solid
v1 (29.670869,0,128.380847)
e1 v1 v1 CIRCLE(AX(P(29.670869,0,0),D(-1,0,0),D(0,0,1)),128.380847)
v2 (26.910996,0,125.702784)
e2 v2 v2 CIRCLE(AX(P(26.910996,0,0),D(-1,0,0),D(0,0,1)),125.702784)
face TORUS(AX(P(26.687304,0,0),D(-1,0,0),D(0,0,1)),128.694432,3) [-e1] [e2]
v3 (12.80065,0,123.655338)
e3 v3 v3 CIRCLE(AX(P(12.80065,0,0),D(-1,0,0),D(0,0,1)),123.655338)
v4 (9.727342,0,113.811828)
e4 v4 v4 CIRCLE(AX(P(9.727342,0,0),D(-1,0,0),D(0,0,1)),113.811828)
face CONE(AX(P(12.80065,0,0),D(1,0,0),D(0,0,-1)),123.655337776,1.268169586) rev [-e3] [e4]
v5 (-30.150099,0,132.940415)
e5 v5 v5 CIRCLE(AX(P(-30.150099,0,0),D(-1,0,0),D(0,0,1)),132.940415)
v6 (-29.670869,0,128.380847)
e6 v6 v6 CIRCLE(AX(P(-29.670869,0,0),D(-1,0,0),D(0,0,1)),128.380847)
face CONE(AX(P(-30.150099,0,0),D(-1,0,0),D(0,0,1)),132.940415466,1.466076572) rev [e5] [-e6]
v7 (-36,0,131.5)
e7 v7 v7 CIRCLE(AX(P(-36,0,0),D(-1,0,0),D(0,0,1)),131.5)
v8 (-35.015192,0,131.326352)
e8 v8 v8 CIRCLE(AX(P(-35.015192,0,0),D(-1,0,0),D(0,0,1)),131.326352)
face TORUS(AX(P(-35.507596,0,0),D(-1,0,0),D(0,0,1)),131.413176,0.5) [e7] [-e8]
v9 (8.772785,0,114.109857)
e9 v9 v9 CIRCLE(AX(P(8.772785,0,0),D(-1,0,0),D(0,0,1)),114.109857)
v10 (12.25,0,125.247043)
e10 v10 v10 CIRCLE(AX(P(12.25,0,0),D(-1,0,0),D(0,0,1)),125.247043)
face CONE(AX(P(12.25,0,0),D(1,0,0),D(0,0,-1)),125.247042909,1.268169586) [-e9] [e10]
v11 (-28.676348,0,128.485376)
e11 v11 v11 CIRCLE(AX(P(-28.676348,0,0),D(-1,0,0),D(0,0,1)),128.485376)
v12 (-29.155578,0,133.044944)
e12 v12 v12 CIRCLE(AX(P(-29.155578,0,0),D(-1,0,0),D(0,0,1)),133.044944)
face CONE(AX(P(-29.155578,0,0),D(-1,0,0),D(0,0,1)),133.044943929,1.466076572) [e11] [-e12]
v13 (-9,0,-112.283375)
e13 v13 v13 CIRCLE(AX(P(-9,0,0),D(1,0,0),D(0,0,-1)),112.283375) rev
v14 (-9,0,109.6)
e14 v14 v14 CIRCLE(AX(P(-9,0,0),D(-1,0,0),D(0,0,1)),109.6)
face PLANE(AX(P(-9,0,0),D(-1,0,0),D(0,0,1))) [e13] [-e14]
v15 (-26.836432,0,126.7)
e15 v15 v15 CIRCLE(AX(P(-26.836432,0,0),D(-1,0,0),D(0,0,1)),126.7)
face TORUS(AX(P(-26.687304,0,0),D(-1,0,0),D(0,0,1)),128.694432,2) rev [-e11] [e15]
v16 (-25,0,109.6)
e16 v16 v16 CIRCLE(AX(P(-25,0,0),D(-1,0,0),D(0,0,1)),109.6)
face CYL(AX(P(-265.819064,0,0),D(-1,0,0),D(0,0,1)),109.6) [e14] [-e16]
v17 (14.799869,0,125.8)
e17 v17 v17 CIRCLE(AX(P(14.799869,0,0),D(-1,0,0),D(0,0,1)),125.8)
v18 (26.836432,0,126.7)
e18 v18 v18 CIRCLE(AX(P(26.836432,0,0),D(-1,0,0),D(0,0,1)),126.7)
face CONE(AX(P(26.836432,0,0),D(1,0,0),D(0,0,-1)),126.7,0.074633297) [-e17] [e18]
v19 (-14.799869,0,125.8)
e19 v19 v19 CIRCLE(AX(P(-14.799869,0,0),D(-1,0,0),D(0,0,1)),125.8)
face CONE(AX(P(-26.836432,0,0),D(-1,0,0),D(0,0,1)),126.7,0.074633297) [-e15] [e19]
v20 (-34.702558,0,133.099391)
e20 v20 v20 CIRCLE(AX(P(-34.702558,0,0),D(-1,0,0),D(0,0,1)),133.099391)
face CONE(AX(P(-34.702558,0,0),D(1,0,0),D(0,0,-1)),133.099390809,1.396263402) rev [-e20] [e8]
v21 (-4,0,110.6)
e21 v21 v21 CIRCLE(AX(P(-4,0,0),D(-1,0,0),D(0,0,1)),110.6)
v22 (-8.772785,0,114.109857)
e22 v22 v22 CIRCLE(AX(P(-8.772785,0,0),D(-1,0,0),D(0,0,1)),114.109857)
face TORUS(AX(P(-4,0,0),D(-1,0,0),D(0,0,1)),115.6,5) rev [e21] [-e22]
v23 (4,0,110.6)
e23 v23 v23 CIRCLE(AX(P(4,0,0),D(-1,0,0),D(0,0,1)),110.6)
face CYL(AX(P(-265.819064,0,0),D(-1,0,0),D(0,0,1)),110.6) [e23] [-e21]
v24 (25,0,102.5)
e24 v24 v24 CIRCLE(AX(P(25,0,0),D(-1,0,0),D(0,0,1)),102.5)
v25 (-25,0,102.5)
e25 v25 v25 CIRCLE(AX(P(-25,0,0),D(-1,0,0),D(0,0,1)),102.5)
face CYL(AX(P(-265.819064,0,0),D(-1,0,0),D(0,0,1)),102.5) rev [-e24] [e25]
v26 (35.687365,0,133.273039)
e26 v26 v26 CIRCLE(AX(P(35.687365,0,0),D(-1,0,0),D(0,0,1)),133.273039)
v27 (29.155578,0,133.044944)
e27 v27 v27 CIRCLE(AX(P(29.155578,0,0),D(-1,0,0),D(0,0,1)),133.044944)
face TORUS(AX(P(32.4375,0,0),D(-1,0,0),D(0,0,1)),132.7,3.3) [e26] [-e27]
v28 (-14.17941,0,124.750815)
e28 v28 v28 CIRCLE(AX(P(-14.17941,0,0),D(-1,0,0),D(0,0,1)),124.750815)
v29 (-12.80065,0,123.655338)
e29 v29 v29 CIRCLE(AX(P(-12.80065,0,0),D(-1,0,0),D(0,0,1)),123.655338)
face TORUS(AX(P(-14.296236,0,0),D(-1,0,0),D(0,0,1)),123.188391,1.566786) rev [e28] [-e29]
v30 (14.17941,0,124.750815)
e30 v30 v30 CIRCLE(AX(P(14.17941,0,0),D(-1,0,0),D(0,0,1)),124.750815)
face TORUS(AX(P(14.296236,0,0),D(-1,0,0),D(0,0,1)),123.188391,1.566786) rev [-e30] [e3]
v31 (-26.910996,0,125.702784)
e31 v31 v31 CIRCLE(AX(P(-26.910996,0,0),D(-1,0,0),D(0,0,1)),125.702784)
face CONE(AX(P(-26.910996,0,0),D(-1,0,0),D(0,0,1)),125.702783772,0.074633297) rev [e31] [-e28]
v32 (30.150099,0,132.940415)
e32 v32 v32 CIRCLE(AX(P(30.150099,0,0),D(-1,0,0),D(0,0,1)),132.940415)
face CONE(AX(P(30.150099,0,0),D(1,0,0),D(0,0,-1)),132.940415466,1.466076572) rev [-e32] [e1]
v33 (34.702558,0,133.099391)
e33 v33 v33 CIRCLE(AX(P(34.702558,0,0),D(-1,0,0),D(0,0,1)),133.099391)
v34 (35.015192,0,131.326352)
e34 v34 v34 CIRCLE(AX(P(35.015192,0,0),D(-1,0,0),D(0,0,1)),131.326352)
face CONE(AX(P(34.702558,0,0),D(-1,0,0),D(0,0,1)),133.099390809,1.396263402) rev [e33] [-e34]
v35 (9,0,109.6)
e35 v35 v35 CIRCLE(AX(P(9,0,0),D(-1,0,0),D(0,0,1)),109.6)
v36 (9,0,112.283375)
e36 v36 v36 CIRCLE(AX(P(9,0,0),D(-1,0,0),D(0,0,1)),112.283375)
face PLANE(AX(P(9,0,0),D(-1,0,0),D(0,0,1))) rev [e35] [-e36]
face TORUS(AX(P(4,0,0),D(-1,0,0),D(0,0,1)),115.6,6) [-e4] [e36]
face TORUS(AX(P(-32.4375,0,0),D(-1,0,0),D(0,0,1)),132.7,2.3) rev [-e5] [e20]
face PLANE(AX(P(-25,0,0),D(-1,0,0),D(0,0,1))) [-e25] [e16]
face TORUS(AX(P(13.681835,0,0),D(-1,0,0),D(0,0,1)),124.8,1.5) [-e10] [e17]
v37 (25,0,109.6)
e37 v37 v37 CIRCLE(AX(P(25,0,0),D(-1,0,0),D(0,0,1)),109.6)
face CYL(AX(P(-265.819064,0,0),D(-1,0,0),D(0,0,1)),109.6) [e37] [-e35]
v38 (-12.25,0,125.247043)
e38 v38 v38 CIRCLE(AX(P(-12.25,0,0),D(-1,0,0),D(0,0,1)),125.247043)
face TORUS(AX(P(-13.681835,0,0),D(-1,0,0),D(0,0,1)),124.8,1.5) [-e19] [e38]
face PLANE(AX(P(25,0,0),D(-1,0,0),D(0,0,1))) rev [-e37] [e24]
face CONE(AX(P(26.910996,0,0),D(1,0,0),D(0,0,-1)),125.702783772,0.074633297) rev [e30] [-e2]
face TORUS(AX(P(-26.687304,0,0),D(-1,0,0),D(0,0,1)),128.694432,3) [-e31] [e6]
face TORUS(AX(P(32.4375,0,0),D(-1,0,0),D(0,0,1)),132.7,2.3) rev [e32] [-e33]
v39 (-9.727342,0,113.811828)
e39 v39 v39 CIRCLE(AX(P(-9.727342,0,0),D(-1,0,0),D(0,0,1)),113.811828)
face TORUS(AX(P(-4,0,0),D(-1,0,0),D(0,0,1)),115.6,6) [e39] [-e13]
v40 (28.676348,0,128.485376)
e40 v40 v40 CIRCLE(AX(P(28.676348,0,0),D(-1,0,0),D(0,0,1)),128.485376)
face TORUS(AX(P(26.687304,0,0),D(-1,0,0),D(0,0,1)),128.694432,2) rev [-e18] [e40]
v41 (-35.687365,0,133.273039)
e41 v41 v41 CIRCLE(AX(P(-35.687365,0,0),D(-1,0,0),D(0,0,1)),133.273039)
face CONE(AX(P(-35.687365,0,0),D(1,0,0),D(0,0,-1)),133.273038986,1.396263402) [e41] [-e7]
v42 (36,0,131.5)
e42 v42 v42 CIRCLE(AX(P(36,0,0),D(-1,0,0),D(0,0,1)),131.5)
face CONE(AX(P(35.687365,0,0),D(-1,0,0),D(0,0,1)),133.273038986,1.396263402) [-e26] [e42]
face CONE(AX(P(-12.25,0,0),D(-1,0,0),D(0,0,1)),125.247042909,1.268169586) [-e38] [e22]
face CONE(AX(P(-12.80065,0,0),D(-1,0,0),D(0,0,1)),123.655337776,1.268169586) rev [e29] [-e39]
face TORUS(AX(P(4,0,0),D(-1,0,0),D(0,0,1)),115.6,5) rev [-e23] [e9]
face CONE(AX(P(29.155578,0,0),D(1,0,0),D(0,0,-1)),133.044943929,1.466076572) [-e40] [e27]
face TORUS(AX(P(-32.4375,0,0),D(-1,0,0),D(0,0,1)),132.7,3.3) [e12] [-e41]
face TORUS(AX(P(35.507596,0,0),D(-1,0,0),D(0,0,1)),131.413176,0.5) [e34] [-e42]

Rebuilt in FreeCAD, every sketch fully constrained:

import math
import FreeCAD as App
import Part
import Sketcher
Q = App.Units.Quantity

doc = App.newDocument("Part")
body = doc.addObject("PartDesign::Body", "Body")

sketch1 = doc.addObject("Sketcher::SketchObject", "Sketch")
body.addObject(sketch1)
sketch1.AttachmentSupport = (doc.XY_Plane, [""])
sketch1.MapMode = "FlatFace"
sketch1.addGeometry(Part.ArcOfCircle(Part.Circle(App.Vector(-4, 115.6, 0), App.Vector(0, 0, 1), 6), math.radians(-146), math.radians(-90)), False)
sketch1.addGeometry(Part.LineSegment(App.Vector(-9, 112.3, 0), App.Vector(-9, 109.6, 0)), False)
sketch1.addGeometry(Part.LineSegment(App.Vector(-9, 109.6, 0), App.Vector(-25, 109.6, 0)), False)
sketch1.addGeometry(Part.LineSegment(App.Vector(-25, 109.6, 0), App.Vector(-25, 102.5, 0)), False)
sketch1.addGeometry(Part.LineSegment(App.Vector(-25, 102.5, 0), App.Vector(25, 102.5, 0)), False)
sketch1.addGeometry(Part.LineSegment(App.Vector(25, 102.5, 0), App.Vector(25, 109.6, 0)), False)
sketch1.addGeometry(Part.LineSegment(App.Vector(25, 109.6, 0), App.Vector(9, 109.6, 0)), False)
sketch1.addGeometry(Part.LineSegment(App.Vector(9, 109.6, 0), App.Vector(9, 112.3, 0)), False)
sketch1.addGeometry(Part.ArcOfCircle(Part.Circle(App.Vector(4, 115.6, 0), App.Vector(0, 0, 1), 6), math.radians(-90), math.radians(-34)), False)
sketch1.addGeometry(Part.LineSegment(App.Vector(4, 109.6, 0), App.Vector(-4, 109.6, 0)), False)
sketch1.addConstraint(Sketcher.Constraint("Coincident", 0, 1, 1, 1))
sketch1.addConstraint(Sketcher.Constraint("Coincident", 1, 2, 2, 1))
sketch1.addConstraint(Sketcher.Constraint("Coincident", 2, 2, 3, 1))
sketch1.addConstraint(Sketcher.Constraint("Coincident", 3, 2, 4, 1))
sketch1.addConstraint(Sketcher.Constraint("Coincident", 4, 2, 5, 1))
sketch1.addConstraint(Sketcher.Constraint("Coincident", 5, 2, 6, 1))
sketch1.addConstraint(Sketcher.Constraint("Coincident", 6, 2, 7, 1))
sketch1.addConstraint(Sketcher.Constraint("Coincident", 7, 2, 8, 2))
sketch1.addConstraint(Sketcher.Constraint("Tangent", 8, 1, 9, 1))
sketch1.addConstraint(Sketcher.Constraint("Tangent", 9, 2, 0, 2))
sketch1.addConstraint(Sketcher.Constraint("Vertical", 1))
sketch1.addConstraint(Sketcher.Constraint("Horizontal", 2))
sketch1.addConstraint(Sketcher.Constraint("Vertical", 3))
sketch1.addConstraint(Sketcher.Constraint("Horizontal", 4))
sketch1.addConstraint(Sketcher.Constraint("Vertical", 5))
sketch1.addConstraint(Sketcher.Constraint("Horizontal", 6))
sketch1.addConstraint(Sketcher.Constraint("Vertical", 7))
sketch1.addConstraint(Sketcher.Constraint("Horizontal", 9))
sketch1.addConstraint(Sketcher.Constraint("Equal", 0, 8))
sketch1.addConstraint(Sketcher.Constraint("Symmetric", 2, 2, 5, 2, -2))
sketch1.addConstraint(Sketcher.Constraint("Symmetric", 0, 1, 7, 2, -2))
sketch1.addConstraint(Sketcher.Constraint("Horizontal", 6, 2, 8, 1))
sketch1.addConstraint(Sketcher.Constraint("Radius", 0, Q("6 mm")))
sketch1.addConstraint(Sketcher.Constraint("DistanceX", 2, 2, 2, 1, Q("16 mm")))
sketch1.addConstraint(Sketcher.Constraint("DistanceX", 4, 1, 4, 2, Q("50 mm")))
sketch1.addConstraint(Sketcher.Constraint("DistanceX", 9, 2, 9, 1, Q("8 mm")))
sketch1.addConstraint(Sketcher.Constraint("DistanceY", 3, 2, 3, 1, Q("7.1 mm")))
sketch1.addConstraint(Sketcher.Constraint("DistanceY", -1, 1, 0, 3, Q("115.6 mm")))
revolution = doc.addObject("PartDesign::Revolution", "Revolution")
body.addObject(revolution)
revolution.Profile = sketch1
revolution.ReferenceAxis = (sketch1, ["H_Axis"])
revolution.Angle = 360

sketch2 = doc.addObject("Sketcher::SketchObject", "Sketch001")
body.addObject(sketch2)
sketch2.AttachmentSupport = (doc.XY_Plane, [""])
sketch2.MapMode = "FlatFace"
sketch2.addGeometry(Part.ArcOfCircle(Part.Circle(App.Vector(-32.4, 132.7, 0), App.Vector(0, 0, 1), 3.3), math.radians(6), math.radians(170)), False)
sketch2.addGeometry(Part.LineSegment(App.Vector(-35.7, 133.3, 0), App.Vector(-36, 131.5, 0)), False)
sketch2.addGeometry(Part.ArcOfCircle(Part.Circle(App.Vector(-35.5, 131.4, 0), App.Vector(0, 0, 1), 0.5), math.radians(170), math.radians(350)), False)
sketch2.addGeometry(Part.LineSegment(App.Vector(-35, 131.3, 0), App.Vector(-34.7, 133.1, 0)), False)
sketch2.addGeometry(Part.ArcOfCircle(Part.Circle(App.Vector(-32.4, 132.7, 0), App.Vector(0, 0, 1), 2.3), math.radians(6), math.radians(170)), False)
sketch2.addGeometry(Part.LineSegment(App.Vector(-30.2, 132.9, 0), App.Vector(-29.7, 128.4, 0)), False)
sketch2.addGeometry(Part.ArcOfCircle(Part.Circle(App.Vector(-26.7, 128.7, 0), App.Vector(0, 0, 1), 3), math.radians(-174), math.radians(-94)), False)
sketch2.addGeometry(Part.LineSegment(App.Vector(-26.9, 125.7, 0), App.Vector(-14.2, 124.8, 0)), False)
sketch2.addGeometry(Part.ArcOfCircle(Part.Circle(App.Vector(-14.3, 123.2, 0), App.Vector(0, 0, 1), 1.6), math.radians(17), math.radians(86)), False)
sketch2.addGeometry(Part.LineSegment(App.Vector(-12.8, 123.7, 0), App.Vector(-9.7, 113.8, 0)), False)
sketch2.addGeometry(Part.ArcOfCircle(Part.Circle(App.Vector(-4, 115.6, 0), App.Vector(0, 0, 1), 6), math.radians(-162.66), math.radians(-146.44)), False)
sketch2.addGeometry(Part.ArcOfCircle(Part.Circle(App.Vector(-4, 115.6, 0), App.Vector(0, 0, 1), 6), math.radians(-146), math.radians(-90)), False)
sketch2.addGeometry(Part.LineSegment(App.Vector(-4, 109.6, 0), App.Vector(4, 109.6, 0)), False)
sketch2.addGeometry(Part.ArcOfCircle(Part.Circle(App.Vector(4, 115.6, 0), App.Vector(0, 0, 1), 6), math.radians(-90), math.radians(-34)), False)
sketch2.addGeometry(Part.ArcOfCircle(Part.Circle(App.Vector(4, 115.6, 0), App.Vector(0, 0, 1), 6), math.radians(-33.56), math.radians(-17.34)), False)
sketch2.addGeometry(Part.LineSegment(App.Vector(9.7, 113.8, 0), App.Vector(12.8, 123.7, 0)), False)
sketch2.addGeometry(Part.ArcOfCircle(Part.Circle(App.Vector(14.3, 123.2, 0), App.Vector(0, 0, 1), 1.6), math.radians(94), math.radians(163)), False)
sketch2.addGeometry(Part.LineSegment(App.Vector(14.2, 124.8, 0), App.Vector(26.9, 125.7, 0)), False)
sketch2.addGeometry(Part.ArcOfCircle(Part.Circle(App.Vector(26.7, 128.7, 0), App.Vector(0, 0, 1), 3), math.radians(-86), math.radians(-6)), False)
sketch2.addGeometry(Part.LineSegment(App.Vector(29.7, 128.4, 0), App.Vector(30.2, 132.9, 0)), False)
sketch2.addGeometry(Part.ArcOfCircle(Part.Circle(App.Vector(32.4, 132.7, 0), App.Vector(0, 0, 1), 2.3), math.radians(10), math.radians(174)), False)
sketch2.addGeometry(Part.LineSegment(App.Vector(34.7, 133.1, 0), App.Vector(35, 131.3, 0)), False)
sketch2.addGeometry(Part.ArcOfCircle(Part.Circle(App.Vector(35.5, 131.4, 0), App.Vector(0, 0, 1), 0.5), math.radians(-170), math.radians(10)), False)
sketch2.addGeometry(Part.LineSegment(App.Vector(36, 131.5, 0), App.Vector(35.7, 133.3, 0)), False)
sketch2.addGeometry(Part.ArcOfCircle(Part.Circle(App.Vector(32.4, 132.7, 0), App.Vector(0, 0, 1), 3.3), math.radians(10), math.radians(174)), False)
sketch2.addGeometry(Part.LineSegment(App.Vector(29.2, 133, 0), App.Vector(28.7, 128.5, 0)), False)
sketch2.addGeometry(Part.ArcOfCircle(Part.Circle(App.Vector(26.7, 128.7, 0), App.Vector(0, 0, 1), 2), math.radians(-86), math.radians(-6)), False)
sketch2.addGeometry(Part.LineSegment(App.Vector(26.8, 126.7, 0), App.Vector(14.8, 125.8, 0)), False)
sketch2.addGeometry(Part.ArcOfCircle(Part.Circle(App.Vector(13.7, 124.8, 0), App.Vector(0, 0, 1), 1.5), math.radians(42), math.radians(163)), False)
sketch2.addGeometry(Part.LineSegment(App.Vector(12.2, 125.2, 0), App.Vector(8.8, 114.1, 0)), False)
sketch2.addGeometry(Part.ArcOfCircle(Part.Circle(App.Vector(4, 115.6, 0), App.Vector(0, 0, 1), 5), math.radians(-90), math.radians(-17)), False)
sketch2.addGeometry(Part.LineSegment(App.Vector(4, 110.6, 0), App.Vector(-4, 110.6, 0)), False)
sketch2.addGeometry(Part.ArcOfCircle(Part.Circle(App.Vector(-4, 115.6, 0), App.Vector(0, 0, 1), 5), math.radians(-163), math.radians(-90)), False)
sketch2.addGeometry(Part.LineSegment(App.Vector(-8.8, 114.1, 0), App.Vector(-12.2, 125.2, 0)), False)
sketch2.addGeometry(Part.ArcOfCircle(Part.Circle(App.Vector(-13.7, 124.8, 0), App.Vector(0, 0, 1), 1.5), math.radians(17), math.radians(138)), False)
sketch2.addGeometry(Part.LineSegment(App.Vector(-14.8, 125.8, 0), App.Vector(-26.8, 126.7, 0)), False)
sketch2.addGeometry(Part.ArcOfCircle(Part.Circle(App.Vector(-26.7, 128.7, 0), App.Vector(0, 0, 1), 2), math.radians(-174), math.radians(-94)), False)
sketch2.addGeometry(Part.LineSegment(App.Vector(-28.7, 128.5, 0), App.Vector(-29.2, 133, 0)), False)
sketch2.addConstraint(Sketcher.Constraint("Tangent", 0, 2, 1, 1))
sketch2.addConstraint(Sketcher.Constraint("Tangent", 1, 2, 2, 1))
sketch2.addConstraint(Sketcher.Constraint("Tangent", 2, 2, 3, 1))
sketch2.addConstraint(Sketcher.Constraint("Tangent", 3, 2, 4, 2))
sketch2.addConstraint(Sketcher.Constraint("Tangent", 4, 1, 5, 1))
sketch2.addConstraint(Sketcher.Constraint("Tangent", 5, 2, 6, 1))
sketch2.addConstraint(Sketcher.Constraint("Tangent", 6, 2, 7, 1))
sketch2.addConstraint(Sketcher.Constraint("Tangent", 7, 2, 8, 2))
sketch2.addConstraint(Sketcher.Constraint("Tangent", 8, 1, 9, 1))
sketch2.addConstraint(Sketcher.Constraint("Tangent", 9, 2, 10, 1))
sketch2.addConstraint(Sketcher.Constraint("Tangent", 10, 2, 11, 1))
sketch2.addConstraint(Sketcher.Constraint("Tangent", 11, 2, 12, 1))
sketch2.addConstraint(Sketcher.Constraint("Tangent", 12, 2, 13, 1))
sketch2.addConstraint(Sketcher.Constraint("Tangent", 13, 2, 14, 1))
sketch2.addConstraint(Sketcher.Constraint("Tangent", 14, 2, 15, 1))
sketch2.addConstraint(Sketcher.Constraint("Tangent", 15, 2, 16, 2))
sketch2.addConstraint(Sketcher.Constraint("Tangent", 16, 1, 17, 1))
sketch2.addConstraint(Sketcher.Constraint("Tangent", 17, 2, 18, 1))
sketch2.addConstraint(Sketcher.Constraint("Tangent", 18, 2, 19, 1))
sketch2.addConstraint(Sketcher.Constraint("Tangent", 19, 2, 20, 2))
sketch2.addConstraint(Sketcher.Constraint("Tangent", 20, 1, 21, 1))
sketch2.addConstraint(Sketcher.Constraint("Tangent", 21, 2, 22, 1))
sketch2.addConstraint(Sketcher.Constraint("Tangent", 22, 2, 23, 1))
sketch2.addConstraint(Sketcher.Constraint("Tangent", 23, 2, 24, 1))
sketch2.addConstraint(Sketcher.Constraint("Tangent", 24, 2, 25, 1))
sketch2.addConstraint(Sketcher.Constraint("Tangent", 25, 2, 26, 2))
sketch2.addConstraint(Sketcher.Constraint("Tangent", 26, 1, 27, 1))
sketch2.addConstraint(Sketcher.Constraint("Coincident", 27, 2, 28, 1))
sketch2.addConstraint(Sketcher.Constraint("Tangent", 28, 2, 29, 1))
sketch2.addConstraint(Sketcher.Constraint("Tangent", 29, 2, 30, 2))
sketch2.addConstraint(Sketcher.Constraint("Tangent", 30, 1, 31, 1))
sketch2.addConstraint(Sketcher.Constraint("Tangent", 31, 2, 32, 2))
sketch2.addConstraint(Sketcher.Constraint("Tangent", 32, 1, 33, 1))
sketch2.addConstraint(Sketcher.Constraint("Tangent", 33, 2, 34, 1))
sketch2.addConstraint(Sketcher.Constraint("Coincident", 34, 2, 35, 1))
sketch2.addConstraint(Sketcher.Constraint("Tangent", 35, 2, 36, 2))
sketch2.addConstraint(Sketcher.Constraint("Tangent", 36, 1, 37, 1))
sketch2.addConstraint(Sketcher.Constraint("Tangent", 37, 2, 0, 1))
sketch2.addConstraint(Sketcher.Constraint("Horizontal", 12))
sketch2.addConstraint(Sketcher.Constraint("Horizontal", 31))
sketch2.addConstraint(Sketcher.Constraint("Coincident", 4, 3, 0, 3))
sketch2.addConstraint(Sketcher.Constraint("Coincident", 24, 3, 20, 3))
sketch2.addConstraint(Sketcher.Constraint("Coincident", 26, 3, 18, 3))
sketch2.addConstraint(Sketcher.Constraint("Coincident", 30, 3, 13, 3))
sketch2.addConstraint(Sketcher.Constraint("Coincident", 32, 3, 10, 3))
sketch2.addConstraint(Sketcher.Constraint("Coincident", 36, 3, 6, 3))
sketch2.addConstraint(Sketcher.Constraint("Equal", 10, 11))
sketch2.addConstraint(Sketcher.Constraint("Equal", 11, 13))
sketch2.addConstraint(Sketcher.Constraint("Equal", 13, 14))
sketch2.addConstraint(Sketcher.Constraint("Equal", 8, 16))
sketch2.addConstraint(Sketcher.Constraint("Equal", 6, 18))
sketch2.addConstraint(Sketcher.Constraint("Equal", 4, 20))
sketch2.addConstraint(Sketcher.Constraint("Equal", 2, 22))
sketch2.addConstraint(Sketcher.Constraint("Equal", 0, 24))
sketch2.addConstraint(Sketcher.Constraint("Equal", 28, 34))
sketch2.addConstraint(Sketcher.Constraint("Equal", 26, 36))
sketch2.addConstraint(Sketcher.Constraint("Symmetric", 8, 3, 16, 3, -2))
sketch2.addConstraint(Sketcher.Constraint("Symmetric", 6, 3, 18, 3, -2))
sketch2.addConstraint(Sketcher.Constraint("Symmetric", 0, 3, 20, 3, -2))
sketch2.addConstraint(Sketcher.Constraint("Symmetric", 2, 3, 22, 3, -2))
sketch2.addConstraint(Sketcher.Constraint("Symmetric", 28, 3, 34, 3, -2))
sketch2.addConstraint(Sketcher.Constraint("Symmetric", 10, 2, 13, 2, -2))
sketch2.addConstraint(Sketcher.Constraint("Parallel", 1, 3))
sketch2.addConstraint(Sketcher.Constraint("Parallel", 19, 25))
sketch2.addConstraint(Sketcher.Constraint("Parallel", 17, 27))
sketch2.addConstraint(Sketcher.Constraint("Parallel", 15, 29))
sketch2.addConstraint(Sketcher.Constraint("Parallel", 7, 35))
sketch2.addConstraint(Sketcher.Constraint("Radius", 6, Q("3 mm")))
sketch2.addConstraint(Sketcher.Constraint("Radius", 10, Q("6 mm")))
sketch2.addConstraint(Sketcher.Constraint("Radius", 26, Q("2 mm")))
sketch2.addConstraint(Sketcher.Constraint("Radius", 30, Q("5 mm")))
sketch2.addConstraint(Sketcher.Constraint("Radius", 0, Q("3.3 mm")))
sketch2.addConstraint(Sketcher.Constraint("Radius", 28, Q("1.5 mm")))
sketch2.addConstraint(Sketcher.Constraint("DistanceX", 12, 1, 12, 2, Q("8 mm")))
sketch2.addConstraint(Sketcher.Constraint("Angle", 1, Q("-100 deg")))
sketch2.addConstraint(Sketcher.Constraint("Angle", 5, Q("-84 deg")))
sketch2.addConstraint(Sketcher.Constraint("DistanceX", 1, 2, -1, 1, Q("36 mm")))
sketch2.addConstraint(Sketcher.Constraint("DistanceX", 10, 2, -1, 1, Q("9 mm")))
sketch2.addConstraint(Sketcher.Constraint("DistanceY", 28, 3, 27, 2, Q("1 mm")))
sketch2.addConstraint(Sketcher.Constraint("DistanceY", -1, 1, 0, 3, Q("132.7 mm")))
sketch2.addConstraint(Sketcher.Constraint("DistanceY", -1, 1, 10, 3, Q("115.6 mm")))
sketch2.addConstraint(Sketcher.Constraint("DistanceY", -1, 1, 28, 3, Q("124.8 mm")))
sketch2.addConstraint(Sketcher.Constraint("DistanceY", -1, 1, 1, 2, Q("131.5 mm")))
sketch2.addConstraint(Sketcher.Constraint("DistanceY", -1, 1, 26, 1, Q("126.7 mm")))
sketch2.addConstraint(Sketcher.Constraint("DistanceX", -1, 1, 28, 2, Q("12.25 mm")))
sketch2.addConstraint(Sketcher.Constraint("Radius", 8, Q("1.566786 mm")))
revolution2 = doc.addObject("PartDesign::Revolution", "Revolution001")
body.addObject(revolution2)
revolution2.Profile = sketch2
revolution2.ReferenceAxis = (sketch2, ["H_Axis"])
revolution2.Angle = 360

doc.recompute()
